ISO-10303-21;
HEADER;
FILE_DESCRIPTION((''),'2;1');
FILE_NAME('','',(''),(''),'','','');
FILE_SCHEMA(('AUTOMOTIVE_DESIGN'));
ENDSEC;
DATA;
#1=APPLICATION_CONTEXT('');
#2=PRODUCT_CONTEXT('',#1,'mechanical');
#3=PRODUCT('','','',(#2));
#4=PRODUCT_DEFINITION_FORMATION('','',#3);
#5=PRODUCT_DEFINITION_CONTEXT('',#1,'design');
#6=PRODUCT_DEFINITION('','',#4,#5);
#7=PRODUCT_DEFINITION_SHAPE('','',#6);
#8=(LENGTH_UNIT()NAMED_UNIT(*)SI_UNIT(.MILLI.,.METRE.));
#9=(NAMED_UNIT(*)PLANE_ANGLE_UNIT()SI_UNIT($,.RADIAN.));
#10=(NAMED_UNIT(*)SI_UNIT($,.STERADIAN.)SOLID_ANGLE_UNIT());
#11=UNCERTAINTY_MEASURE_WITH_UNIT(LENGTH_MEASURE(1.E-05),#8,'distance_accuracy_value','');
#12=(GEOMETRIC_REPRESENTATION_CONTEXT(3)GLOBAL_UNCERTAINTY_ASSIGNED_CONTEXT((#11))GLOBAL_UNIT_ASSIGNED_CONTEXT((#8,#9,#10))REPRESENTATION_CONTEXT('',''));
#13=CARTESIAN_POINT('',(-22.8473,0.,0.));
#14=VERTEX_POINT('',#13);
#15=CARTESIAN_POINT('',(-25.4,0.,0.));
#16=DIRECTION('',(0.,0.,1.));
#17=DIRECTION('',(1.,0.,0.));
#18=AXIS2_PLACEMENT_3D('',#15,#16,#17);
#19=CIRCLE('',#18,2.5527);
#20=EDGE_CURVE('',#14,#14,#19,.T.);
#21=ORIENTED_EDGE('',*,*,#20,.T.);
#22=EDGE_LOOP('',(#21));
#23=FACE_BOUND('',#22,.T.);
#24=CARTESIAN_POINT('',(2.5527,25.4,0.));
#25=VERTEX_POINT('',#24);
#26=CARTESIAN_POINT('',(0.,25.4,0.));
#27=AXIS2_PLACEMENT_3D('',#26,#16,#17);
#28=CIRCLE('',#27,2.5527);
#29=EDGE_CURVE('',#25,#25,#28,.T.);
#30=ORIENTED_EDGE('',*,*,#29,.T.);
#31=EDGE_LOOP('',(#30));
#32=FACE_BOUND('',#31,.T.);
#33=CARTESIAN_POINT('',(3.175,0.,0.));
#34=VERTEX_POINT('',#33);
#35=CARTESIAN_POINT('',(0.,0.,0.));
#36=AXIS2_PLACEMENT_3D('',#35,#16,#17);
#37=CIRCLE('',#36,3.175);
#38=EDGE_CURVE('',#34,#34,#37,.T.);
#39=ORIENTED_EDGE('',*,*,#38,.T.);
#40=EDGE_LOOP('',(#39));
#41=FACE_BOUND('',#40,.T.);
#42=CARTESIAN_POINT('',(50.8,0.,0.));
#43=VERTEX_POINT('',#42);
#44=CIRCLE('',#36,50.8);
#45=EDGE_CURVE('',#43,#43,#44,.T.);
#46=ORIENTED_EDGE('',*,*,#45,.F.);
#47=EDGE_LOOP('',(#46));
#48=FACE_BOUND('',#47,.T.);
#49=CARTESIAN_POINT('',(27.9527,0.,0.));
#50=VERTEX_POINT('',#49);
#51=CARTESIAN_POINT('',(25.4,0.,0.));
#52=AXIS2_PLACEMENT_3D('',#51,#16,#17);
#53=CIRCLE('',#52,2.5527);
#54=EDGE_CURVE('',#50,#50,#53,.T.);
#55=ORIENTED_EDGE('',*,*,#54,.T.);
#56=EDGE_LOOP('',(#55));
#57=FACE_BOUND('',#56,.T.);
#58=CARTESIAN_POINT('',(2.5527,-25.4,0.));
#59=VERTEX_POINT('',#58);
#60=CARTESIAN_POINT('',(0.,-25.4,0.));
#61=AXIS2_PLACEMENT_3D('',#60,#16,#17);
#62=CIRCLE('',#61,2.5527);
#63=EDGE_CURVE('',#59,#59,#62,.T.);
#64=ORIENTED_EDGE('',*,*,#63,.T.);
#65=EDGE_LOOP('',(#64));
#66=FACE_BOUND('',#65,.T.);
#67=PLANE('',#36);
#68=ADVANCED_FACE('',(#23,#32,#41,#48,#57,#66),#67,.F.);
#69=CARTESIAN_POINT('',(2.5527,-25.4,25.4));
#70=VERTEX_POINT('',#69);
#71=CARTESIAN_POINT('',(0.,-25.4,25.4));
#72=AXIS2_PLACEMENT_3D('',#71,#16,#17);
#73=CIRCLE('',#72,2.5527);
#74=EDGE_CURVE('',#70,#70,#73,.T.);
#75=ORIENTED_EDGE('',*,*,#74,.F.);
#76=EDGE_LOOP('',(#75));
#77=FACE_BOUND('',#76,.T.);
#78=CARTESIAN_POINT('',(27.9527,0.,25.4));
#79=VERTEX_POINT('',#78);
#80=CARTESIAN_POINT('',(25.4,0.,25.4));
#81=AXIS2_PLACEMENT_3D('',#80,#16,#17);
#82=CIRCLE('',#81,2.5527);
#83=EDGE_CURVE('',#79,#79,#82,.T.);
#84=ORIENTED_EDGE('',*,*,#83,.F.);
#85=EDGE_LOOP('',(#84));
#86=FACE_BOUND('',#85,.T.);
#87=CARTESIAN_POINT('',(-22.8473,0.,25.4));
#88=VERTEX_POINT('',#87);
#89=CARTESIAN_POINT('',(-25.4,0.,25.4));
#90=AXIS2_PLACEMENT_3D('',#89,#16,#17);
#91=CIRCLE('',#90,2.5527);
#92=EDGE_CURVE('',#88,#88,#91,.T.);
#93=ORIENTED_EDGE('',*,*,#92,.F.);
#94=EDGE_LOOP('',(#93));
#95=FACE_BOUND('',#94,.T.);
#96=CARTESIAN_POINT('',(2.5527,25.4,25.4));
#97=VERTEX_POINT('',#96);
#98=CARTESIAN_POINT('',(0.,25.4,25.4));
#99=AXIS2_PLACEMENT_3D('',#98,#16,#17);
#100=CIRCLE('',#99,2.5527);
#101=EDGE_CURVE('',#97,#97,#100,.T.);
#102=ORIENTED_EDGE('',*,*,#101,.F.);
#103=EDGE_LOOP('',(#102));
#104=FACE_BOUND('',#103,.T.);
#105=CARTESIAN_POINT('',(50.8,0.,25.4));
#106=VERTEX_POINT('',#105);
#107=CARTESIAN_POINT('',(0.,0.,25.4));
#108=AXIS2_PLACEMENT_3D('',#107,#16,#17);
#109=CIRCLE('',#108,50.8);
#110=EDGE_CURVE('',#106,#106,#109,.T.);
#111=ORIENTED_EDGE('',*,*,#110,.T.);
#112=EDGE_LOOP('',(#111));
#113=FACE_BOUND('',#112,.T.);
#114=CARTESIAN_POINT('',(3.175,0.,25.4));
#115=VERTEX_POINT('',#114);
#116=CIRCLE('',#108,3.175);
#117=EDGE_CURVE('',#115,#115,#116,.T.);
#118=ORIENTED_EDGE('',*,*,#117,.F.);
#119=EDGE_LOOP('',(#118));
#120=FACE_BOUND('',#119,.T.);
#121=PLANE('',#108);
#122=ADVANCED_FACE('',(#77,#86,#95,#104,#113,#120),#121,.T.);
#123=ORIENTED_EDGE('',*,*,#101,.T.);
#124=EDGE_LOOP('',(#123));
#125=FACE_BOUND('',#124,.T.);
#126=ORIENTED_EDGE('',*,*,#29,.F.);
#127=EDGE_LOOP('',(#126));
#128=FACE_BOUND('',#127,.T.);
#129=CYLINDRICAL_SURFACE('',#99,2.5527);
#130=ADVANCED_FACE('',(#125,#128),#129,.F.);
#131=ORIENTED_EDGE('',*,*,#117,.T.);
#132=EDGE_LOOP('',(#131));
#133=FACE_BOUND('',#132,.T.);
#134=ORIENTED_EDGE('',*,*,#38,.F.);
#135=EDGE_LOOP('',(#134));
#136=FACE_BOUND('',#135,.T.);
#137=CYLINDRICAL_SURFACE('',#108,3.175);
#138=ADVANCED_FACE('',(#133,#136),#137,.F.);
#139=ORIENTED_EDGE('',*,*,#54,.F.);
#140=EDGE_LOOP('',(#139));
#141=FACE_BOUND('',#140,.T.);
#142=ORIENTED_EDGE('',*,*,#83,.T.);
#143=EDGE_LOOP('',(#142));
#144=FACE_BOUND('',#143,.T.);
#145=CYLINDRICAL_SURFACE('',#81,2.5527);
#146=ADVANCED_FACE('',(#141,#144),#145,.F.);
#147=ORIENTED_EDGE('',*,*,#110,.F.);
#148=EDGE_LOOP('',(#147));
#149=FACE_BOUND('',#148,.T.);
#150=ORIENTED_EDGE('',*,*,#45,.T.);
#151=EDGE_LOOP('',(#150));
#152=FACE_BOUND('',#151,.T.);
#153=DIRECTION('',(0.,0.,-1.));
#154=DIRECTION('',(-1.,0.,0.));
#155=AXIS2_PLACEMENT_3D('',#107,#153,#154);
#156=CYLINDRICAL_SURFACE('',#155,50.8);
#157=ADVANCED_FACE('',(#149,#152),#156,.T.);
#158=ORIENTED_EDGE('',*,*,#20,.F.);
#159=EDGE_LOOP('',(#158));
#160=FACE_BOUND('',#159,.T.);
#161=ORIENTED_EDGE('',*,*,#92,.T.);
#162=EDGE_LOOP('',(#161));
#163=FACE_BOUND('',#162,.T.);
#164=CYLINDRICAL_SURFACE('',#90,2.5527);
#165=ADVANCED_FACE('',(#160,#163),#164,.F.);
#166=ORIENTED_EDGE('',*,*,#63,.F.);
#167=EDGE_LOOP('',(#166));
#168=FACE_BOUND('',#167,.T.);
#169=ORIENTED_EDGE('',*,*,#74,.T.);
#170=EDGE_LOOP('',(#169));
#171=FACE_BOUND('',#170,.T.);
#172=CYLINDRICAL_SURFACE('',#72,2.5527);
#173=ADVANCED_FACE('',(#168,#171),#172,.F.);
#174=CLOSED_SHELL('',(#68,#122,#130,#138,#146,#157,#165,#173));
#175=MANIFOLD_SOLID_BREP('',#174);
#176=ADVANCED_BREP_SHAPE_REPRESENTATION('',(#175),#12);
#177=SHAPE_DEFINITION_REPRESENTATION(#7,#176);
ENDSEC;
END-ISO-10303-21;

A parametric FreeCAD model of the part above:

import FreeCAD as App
import Part
import Sketcher
Q = App.Units.Quantity

doc = App.newDocument("Part")
params = doc.addObject("Spreadsheet::Sheet", "Params")
for row, (alias, value) in enumerate([
    ("sketch1_diameter", "4 in"),
    ("pad1_length", "1 in"),
    ("sketch2_diameter", "0.25 in"),
    ("hole_diameter", "0.25 in"),
    ("sketch3_diameter", "0.201 in"),
    ("hole2_diameter", "0.201 in"),
], start=1):
    params.set(f"A{row}", alias)
    params.set(f"B{row}", "=" + value)
    params.setAlias(f"B{row}", alias)

body = doc.addObject("PartDesign::Body", "Body")

# Sketch on XY plane
sketch1 = body.newObject("Sketcher::SketchObject", "Sketch")
sketch1.AttachmentSupport = (doc.getObject("XY_Plane"), [""])
sketch1.MapMode = "FlatFace"
sketch1.addGeometry(Part.Circle(App.Vector(0, 0, 0), App.Vector(0, 0, 1), 50.8), False)
sketch1.addConstraint([
    Sketcher.Constraint("Coincident", 0, 3, -1, 1),
    Sketcher.Constraint("Diameter", 0, Q("4 in")),
])
sketch1.setExpression("Constraints[1]", "Params.sketch1_diameter")
pad1 = body.newObject("PartDesign::Pad", "Pad")
pad1.Profile = sketch1
pad1.setExpression("Length", "Params.pad1_length")

# Sketch on XY plane
sketch2 = body.newObject("Sketcher::SketchObject", "Sketch001")
sketch2.AttachmentSupport = (doc.getObject("XY_Plane"), [""])
sketch2.MapMode = "FlatFace"
sketch2.AttachmentOffset = App.Placement(App.Vector(0, 0, 1 * 25.4), App.Rotation())
sketch2.addGeometry(Part.Circle(App.Vector(0, 0, 0), App.Vector(0, 0, 1), 3.175), False)
sketch2.addConstraint([
    Sketcher.Constraint("Coincident", 0, 3, -1, 1),
    Sketcher.Constraint("Diameter", 0, Q("0.25 in")),
])
sketch2.setExpression("Constraints[1]", "Params.sketch2_diameter")
doc.recompute()
hole = body.newObject("PartDesign::Hole", "Hole")
hole.Profile = sketch2
hole.ThreadType = "None"
hole.setExpression("Diameter", "Params.hole_diameter")
hole.DepthType = "ThroughAll"

# Sketch on XY plane
sketch3 = body.newObject("Sketcher::SketchObject", "Sketch002")
sketch3.AttachmentSupport = (doc.getObject("XY_Plane"), [""])
sketch3.MapMode = "FlatFace"
sketch3.AttachmentOffset = App.Placement(App.Vector(0, 0, 1 * 25.4), App.Rotation())
sketch3.addGeometry(Part.Circle(App.Vector(25.4, 0, 0), App.Vector(0, 0, 1), 2.5527), False)
sketch3.addConstraint([
    Sketcher.Constraint("PointOnObject", 0, 3, -1),
    Sketcher.Constraint("Diameter", 0, Q("0.201 in")),
    Sketcher.Constraint("DistanceX", -1, 1, 0, 3, Q("1 in")),
])
sketch3.setExpression("Constraints[1]", "Params.sketch3_diameter")
doc.recompute()
hole2 = body.newObject("PartDesign::Hole", "Hole001")
hole2.Profile = sketch3
hole2.ThreadType = "None"
hole2.setExpression("Diameter", "Params.hole2_diameter")
hole2.DepthType = "ThroughAll"
doc.recompute()

polarpattern = body.newObject("PartDesign::PolarPattern", "PolarPattern")
polarpattern.Originals = [hole2]
polarpattern.Axis = (doc.getObject("Z_Axis"), [""])
polarpattern.Angle = 360
polarpattern.Occurrences = 4
body.Tip = polarpattern

doc.recompute()
